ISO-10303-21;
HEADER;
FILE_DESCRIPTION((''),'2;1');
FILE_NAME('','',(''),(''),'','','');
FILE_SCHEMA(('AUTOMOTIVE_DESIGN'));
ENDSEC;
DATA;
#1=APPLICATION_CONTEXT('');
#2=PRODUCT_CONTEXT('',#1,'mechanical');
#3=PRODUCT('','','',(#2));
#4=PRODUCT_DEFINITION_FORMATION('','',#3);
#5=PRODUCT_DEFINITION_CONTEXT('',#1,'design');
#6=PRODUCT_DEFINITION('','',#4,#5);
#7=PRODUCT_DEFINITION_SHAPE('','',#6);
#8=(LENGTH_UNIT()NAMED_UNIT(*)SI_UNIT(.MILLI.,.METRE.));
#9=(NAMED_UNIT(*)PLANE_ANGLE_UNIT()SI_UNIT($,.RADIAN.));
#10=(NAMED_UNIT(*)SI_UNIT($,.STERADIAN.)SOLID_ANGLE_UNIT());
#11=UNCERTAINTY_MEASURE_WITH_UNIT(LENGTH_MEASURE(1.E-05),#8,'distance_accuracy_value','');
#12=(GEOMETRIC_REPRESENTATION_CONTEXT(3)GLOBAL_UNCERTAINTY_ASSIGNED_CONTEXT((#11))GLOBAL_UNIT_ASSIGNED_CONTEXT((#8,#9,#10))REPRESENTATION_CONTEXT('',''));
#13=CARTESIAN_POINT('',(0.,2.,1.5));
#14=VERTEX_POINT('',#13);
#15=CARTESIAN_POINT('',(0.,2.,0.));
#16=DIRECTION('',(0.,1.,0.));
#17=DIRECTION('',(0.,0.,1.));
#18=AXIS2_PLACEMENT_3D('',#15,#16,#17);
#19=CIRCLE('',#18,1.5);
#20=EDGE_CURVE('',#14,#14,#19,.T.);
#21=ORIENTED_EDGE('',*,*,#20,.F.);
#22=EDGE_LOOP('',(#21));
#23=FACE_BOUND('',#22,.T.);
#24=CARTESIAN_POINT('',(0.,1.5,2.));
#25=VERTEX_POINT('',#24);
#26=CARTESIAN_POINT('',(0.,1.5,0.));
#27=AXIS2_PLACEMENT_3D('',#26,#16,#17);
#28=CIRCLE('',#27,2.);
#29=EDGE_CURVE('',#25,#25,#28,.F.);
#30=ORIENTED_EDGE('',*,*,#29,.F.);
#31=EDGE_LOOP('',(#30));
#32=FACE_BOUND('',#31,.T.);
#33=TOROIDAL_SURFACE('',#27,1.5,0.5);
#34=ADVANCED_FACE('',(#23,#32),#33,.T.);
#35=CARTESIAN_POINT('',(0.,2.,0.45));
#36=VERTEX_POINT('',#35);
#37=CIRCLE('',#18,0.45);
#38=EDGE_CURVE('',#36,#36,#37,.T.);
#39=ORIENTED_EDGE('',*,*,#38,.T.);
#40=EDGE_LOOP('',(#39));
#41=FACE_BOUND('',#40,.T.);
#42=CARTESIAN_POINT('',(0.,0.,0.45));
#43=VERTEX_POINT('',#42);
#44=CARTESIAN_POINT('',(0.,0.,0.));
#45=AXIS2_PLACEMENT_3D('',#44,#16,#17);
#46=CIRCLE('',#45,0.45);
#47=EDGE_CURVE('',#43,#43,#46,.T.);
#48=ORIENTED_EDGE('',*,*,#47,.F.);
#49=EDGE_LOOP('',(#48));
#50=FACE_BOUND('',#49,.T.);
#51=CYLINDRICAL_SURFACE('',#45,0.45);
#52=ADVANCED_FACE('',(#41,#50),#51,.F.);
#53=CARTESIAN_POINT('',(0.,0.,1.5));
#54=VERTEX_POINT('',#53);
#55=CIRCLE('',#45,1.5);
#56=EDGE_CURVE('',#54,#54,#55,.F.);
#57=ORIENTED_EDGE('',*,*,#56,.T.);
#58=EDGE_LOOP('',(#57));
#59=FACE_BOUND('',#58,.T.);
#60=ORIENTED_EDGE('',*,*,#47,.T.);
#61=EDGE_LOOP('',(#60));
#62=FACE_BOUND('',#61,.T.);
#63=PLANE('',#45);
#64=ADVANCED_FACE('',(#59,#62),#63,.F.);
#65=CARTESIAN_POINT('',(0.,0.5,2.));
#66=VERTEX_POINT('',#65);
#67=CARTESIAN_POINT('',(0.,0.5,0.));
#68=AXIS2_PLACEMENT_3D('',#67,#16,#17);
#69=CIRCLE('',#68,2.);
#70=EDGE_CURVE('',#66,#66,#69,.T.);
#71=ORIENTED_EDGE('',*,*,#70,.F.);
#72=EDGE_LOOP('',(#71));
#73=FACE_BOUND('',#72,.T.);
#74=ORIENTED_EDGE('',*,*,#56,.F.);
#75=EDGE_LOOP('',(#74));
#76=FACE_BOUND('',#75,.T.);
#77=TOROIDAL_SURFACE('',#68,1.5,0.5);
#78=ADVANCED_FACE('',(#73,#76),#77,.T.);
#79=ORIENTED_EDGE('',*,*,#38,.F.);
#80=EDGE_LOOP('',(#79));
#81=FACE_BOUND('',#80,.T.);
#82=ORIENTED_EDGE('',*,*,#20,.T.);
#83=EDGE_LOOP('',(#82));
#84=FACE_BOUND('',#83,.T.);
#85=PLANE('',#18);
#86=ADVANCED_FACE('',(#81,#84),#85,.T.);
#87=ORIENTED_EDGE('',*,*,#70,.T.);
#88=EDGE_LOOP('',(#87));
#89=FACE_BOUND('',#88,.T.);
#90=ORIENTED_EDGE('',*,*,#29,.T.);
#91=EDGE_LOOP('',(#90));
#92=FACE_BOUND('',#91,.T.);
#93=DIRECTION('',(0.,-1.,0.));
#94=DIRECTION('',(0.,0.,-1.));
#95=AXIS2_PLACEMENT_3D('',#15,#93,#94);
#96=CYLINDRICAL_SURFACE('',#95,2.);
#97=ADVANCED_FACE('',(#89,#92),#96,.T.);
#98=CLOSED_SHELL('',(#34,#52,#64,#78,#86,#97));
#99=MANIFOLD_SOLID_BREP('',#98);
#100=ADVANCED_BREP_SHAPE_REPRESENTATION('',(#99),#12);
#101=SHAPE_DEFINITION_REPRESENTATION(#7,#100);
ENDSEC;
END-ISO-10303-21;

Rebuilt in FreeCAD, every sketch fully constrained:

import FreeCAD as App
import Part
import Sketcher


def edges_at(feature, points):
    """Names of the edges that pass closest to the given points."""
    edges = feature.Shape.Edges
    near = lambda p: min(range(len(edges)), key=lambda i: edges[i].distToShape(Part.Vertex(*p))[0])
    return sorted({f"Edge{near(p) + 1}" for p in points})

doc = App.newDocument("Part")
body = doc.addObject("PartDesign::Body", "Body")

# Sketch on XZ plane
sketch1 = body.newObject("Sketcher::SketchObject", "Sketch")
sketch1.AttachmentSupport = (doc.getObject("XZ_Plane"), [""])
sketch1.MapMode = "FlatFace"
sketch1.addGeometry(Part.Circle(App.Vector(0, 0, 0), App.Vector(0, 0, 1), 2), False)
sketch1.addConstraint([
    Sketcher.Constraint("Coincident", 0, 3, -1, 1),
    Sketcher.Constraint("Diameter", 0, 4.0),
])
pad1 = body.newObject("PartDesign::Pad", "Pad")
pad1.Profile = sketch1
pad1.Length = 2
pad1.Reversed = True

# Sketch on XZ plane
sketch2 = body.newObject("Sketcher::SketchObject", "Sketch001")
sketch2.AttachmentSupport = (doc.getObject("XZ_Plane"), [""])
sketch2.MapMode = "FlatFace"
sketch2.AttachmentOffset = App.Placement(App.Vector(0, 0, -2), App.Rotation())
sketch2.addGeometry(Part.Circle(App.Vector(0, 0, 0), App.Vector(0, 0, 1), 0.45), False)
sketch2.addConstraint([
    Sketcher.Constraint("Coincident", 0, 3, -1, 1),
    Sketcher.Constraint("Diameter", 0, 0.9),
])
pocket1 = body.newObject("PartDesign::Pocket", "Pocket")
pocket1.Profile = sketch2
pocket1.Type = "ThroughAll"
pocket1.Reversed = True
doc.recompute()

fillet = body.newObject("PartDesign::Fillet", "Fillet")
fillet.Base = (pocket1, edges_at(pocket1, [(-2, 0, 0), (-2, 2, 0)]))
fillet.Radius = 0.5

doc.recompute()
